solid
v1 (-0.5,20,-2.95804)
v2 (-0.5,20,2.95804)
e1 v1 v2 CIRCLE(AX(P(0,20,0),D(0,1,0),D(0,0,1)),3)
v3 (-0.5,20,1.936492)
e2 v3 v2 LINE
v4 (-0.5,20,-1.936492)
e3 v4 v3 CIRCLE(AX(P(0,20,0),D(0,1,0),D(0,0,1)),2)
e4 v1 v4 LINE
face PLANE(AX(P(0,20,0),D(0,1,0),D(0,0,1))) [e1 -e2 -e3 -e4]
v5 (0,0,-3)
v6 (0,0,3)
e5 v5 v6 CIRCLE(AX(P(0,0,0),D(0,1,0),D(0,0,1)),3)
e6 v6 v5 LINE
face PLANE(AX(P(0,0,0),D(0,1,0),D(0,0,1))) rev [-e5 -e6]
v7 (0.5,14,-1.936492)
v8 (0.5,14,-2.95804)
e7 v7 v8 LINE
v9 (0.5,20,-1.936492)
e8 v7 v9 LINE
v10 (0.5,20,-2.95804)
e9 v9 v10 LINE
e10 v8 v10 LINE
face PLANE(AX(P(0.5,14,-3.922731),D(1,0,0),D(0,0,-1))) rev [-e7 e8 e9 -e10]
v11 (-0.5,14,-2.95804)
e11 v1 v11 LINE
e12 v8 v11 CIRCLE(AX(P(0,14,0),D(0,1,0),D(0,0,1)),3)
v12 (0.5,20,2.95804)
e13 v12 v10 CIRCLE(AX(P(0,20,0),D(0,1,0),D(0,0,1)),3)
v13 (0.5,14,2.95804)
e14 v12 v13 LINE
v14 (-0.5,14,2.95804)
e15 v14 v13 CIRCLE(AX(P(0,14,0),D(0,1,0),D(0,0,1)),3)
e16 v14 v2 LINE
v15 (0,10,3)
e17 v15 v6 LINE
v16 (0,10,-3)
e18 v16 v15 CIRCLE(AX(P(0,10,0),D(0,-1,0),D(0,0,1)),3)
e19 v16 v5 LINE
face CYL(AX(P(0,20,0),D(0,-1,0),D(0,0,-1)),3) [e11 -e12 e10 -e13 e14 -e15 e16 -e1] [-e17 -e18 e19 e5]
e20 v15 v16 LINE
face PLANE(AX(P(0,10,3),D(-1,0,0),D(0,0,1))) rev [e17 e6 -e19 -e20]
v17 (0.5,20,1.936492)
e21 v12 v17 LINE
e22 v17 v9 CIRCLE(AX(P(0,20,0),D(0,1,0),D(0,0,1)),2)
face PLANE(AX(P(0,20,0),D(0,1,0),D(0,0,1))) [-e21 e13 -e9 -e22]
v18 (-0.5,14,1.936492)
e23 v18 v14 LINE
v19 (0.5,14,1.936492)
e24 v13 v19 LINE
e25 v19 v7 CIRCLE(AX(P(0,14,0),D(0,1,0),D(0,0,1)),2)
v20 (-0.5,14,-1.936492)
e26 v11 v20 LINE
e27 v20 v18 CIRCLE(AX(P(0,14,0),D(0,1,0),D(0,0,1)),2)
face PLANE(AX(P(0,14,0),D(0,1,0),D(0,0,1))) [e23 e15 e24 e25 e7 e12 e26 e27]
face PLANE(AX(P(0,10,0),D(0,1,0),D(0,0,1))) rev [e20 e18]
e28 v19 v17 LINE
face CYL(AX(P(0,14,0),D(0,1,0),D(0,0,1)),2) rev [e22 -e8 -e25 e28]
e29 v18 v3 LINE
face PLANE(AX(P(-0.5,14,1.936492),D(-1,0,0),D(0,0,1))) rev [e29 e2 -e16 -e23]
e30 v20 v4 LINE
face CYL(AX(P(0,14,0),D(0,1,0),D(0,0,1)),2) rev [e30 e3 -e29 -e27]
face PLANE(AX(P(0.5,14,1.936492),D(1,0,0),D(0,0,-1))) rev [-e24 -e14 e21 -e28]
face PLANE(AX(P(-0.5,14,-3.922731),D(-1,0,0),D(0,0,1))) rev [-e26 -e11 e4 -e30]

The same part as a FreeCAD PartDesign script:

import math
import FreeCAD as App
import Part
import Sketcher
from FreeCAD import Vector
Q = App.Units.Quantity

doc = App.newDocument("Part")
body = doc.addObject("PartDesign::Body", "Body")

sketch1 = body.newObject("Sketcher::SketchObject", "Sketch")
sketch1.AttachmentSupport = (doc.getObject("XZ_Plane"), [""])
sketch1.MapMode = "FlatFace"
sketch1.addGeometry(Part.Circle(Vector(0, 0, 0), Vector(0, 0, 1), 3), False)
sketch1.addConstraint([
    Sketcher.Constraint("Coincident", 0, 3, -1, 1),
    Sketcher.Constraint("Diameter", 0, Q("6 mm")),
])
pad1 = body.newObject("PartDesign::Pad", "Pad")
pad1.Profile = sketch1
pad1.Length = 20
pad1.Reversed = True

sketch2 = body.newObject("Sketcher::SketchObject", "Sketch001")
sketch2.AttachmentSupport = (doc.getObject("XZ_Plane"), [""])
sketch2.MapMode = "FlatFace"
sketch2.addGeometry([
    Part.LineSegment(Vector(0, 3, 0), Vector(0, -3, 0)),
    Part.ArcOfCircle(Part.Circle(Vector(0, 0, 0), Vector(0, 0, 1), 3), math.radians(-90), math.radians(90)),
], False)
sketch2.addConstraint([
    Sketcher.Constraint("Coincident", 0, 1, 1, 2),
    Sketcher.Constraint("Coincident", 1, 1, 0, 2),
    Sketcher.Constraint("Vertical", 0),
    Sketcher.Constraint("Coincident", 1, 3, -1, 1),
    Sketcher.Constraint("PointOnObject", 0, 1, -2),
    Sketcher.Constraint("Radius", 1, Q("3 mm")),
])
pocket1 = body.newObject("PartDesign::Pocket", "Pocket")
pocket1.Profile = sketch2
pocket1.Length = 10

sketch3 = body.newObject("Sketcher::SketchObject", "Sketch002")
sketch3.AttachmentSupport = (doc.getObject("XZ_Plane"), [""])
sketch3.MapMode = "FlatFace"
sketch3.AttachmentOffset = App.Placement(Vector(0, 0, -20), App.Rotation())
sketch3.addGeometry([
    Part.LineSegment(Vector(-0.5, 1.9, 0), Vector(-0.5, 3.9, 0)),
    Part.LineSegment(Vector(-0.5, 3.9, 0), Vector(0.5, 3.9, 0)),
    Part.LineSegment(Vector(0.5, 3.9, 0), Vector(0.5, 1.9, 0)),
    Part.ArcOfCircle(Part.Circle(Vector(0, 0, 0), Vector(0, 0, 1), 2), math.radians(-76), math.radians(76)),
    Part.LineSegment(Vector(0.5, -1.9, 0), Vector(0.5, -3.9, 0)),
    Part.LineSegment(Vector(0.5, -3.9, 0), Vector(-0.5, -3.9, 0)),
    Part.LineSegment(Vector(-0.5, -3.9, 0), Vector(-0.5, -1.9, 0)),
    Part.ArcOfCircle(Part.Circle(Vector(0, 0, 0), Vector(0, 0, 1), 2), math.radians(104), math.radians(256)),
], False)
sketch3.addConstraint([
    Sketcher.Constraint("Coincident", 0, 2, 1, 1),
    Sketcher.Constraint("Coincident", 1, 2, 2, 1),
    Sketcher.Constraint("Coincident", 2, 2, 3, 2),
    Sketcher.Constraint("Coincident", 3, 1, 4, 1),
    Sketcher.Constraint("Coincident", 4, 2, 5, 1),
    Sketcher.Constraint("Coincident", 5, 2, 6, 1),
    Sketcher.Constraint("Coincident", 6, 2, 7, 2),
    Sketcher.Constraint("Coincident", 7, 1, 0, 1),
    Sketcher.Constraint("Vertical", 0),
    Sketcher.Constraint("Horizontal", 1),
    Sketcher.Constraint("Vertical", 2),
    Sketcher.Constraint("Vertical", 4),
    Sketcher.Constraint("Horizontal", 5),
    Sketcher.Constraint("Vertical", 6),
    Sketcher.Constraint("Coincident", 3, 3, -1, 1),
    Sketcher.Constraint("Coincident", 7, 3, -1, 1),
    Sketcher.Constraint("Equal", 3, 7),
    Sketcher.Constraint("Symmetric", 0, 2, 4, 2, -1, 1),
    Sketcher.Constraint("Horizontal", 3, 1, 6, 2),
    Sketcher.Constraint("Horizontal", 2, 2, 7, 1),
    Sketcher.Constraint("Radius", 3, Q("2 mm")),
    Sketcher.Constraint("DistanceX", 1, 1, 1, 2, Q("1 mm")),
    Sketcher.Constraint("DistanceY", 0, 1, 0, 2, Q("1.98624 mm")),
])
pocket2 = body.newObject("PartDesign::Pocket", "Pocket001")
pocket2.Profile = sketch3
pocket2.Length = 6
pocket2.Reversed = True

doc.recompute()
